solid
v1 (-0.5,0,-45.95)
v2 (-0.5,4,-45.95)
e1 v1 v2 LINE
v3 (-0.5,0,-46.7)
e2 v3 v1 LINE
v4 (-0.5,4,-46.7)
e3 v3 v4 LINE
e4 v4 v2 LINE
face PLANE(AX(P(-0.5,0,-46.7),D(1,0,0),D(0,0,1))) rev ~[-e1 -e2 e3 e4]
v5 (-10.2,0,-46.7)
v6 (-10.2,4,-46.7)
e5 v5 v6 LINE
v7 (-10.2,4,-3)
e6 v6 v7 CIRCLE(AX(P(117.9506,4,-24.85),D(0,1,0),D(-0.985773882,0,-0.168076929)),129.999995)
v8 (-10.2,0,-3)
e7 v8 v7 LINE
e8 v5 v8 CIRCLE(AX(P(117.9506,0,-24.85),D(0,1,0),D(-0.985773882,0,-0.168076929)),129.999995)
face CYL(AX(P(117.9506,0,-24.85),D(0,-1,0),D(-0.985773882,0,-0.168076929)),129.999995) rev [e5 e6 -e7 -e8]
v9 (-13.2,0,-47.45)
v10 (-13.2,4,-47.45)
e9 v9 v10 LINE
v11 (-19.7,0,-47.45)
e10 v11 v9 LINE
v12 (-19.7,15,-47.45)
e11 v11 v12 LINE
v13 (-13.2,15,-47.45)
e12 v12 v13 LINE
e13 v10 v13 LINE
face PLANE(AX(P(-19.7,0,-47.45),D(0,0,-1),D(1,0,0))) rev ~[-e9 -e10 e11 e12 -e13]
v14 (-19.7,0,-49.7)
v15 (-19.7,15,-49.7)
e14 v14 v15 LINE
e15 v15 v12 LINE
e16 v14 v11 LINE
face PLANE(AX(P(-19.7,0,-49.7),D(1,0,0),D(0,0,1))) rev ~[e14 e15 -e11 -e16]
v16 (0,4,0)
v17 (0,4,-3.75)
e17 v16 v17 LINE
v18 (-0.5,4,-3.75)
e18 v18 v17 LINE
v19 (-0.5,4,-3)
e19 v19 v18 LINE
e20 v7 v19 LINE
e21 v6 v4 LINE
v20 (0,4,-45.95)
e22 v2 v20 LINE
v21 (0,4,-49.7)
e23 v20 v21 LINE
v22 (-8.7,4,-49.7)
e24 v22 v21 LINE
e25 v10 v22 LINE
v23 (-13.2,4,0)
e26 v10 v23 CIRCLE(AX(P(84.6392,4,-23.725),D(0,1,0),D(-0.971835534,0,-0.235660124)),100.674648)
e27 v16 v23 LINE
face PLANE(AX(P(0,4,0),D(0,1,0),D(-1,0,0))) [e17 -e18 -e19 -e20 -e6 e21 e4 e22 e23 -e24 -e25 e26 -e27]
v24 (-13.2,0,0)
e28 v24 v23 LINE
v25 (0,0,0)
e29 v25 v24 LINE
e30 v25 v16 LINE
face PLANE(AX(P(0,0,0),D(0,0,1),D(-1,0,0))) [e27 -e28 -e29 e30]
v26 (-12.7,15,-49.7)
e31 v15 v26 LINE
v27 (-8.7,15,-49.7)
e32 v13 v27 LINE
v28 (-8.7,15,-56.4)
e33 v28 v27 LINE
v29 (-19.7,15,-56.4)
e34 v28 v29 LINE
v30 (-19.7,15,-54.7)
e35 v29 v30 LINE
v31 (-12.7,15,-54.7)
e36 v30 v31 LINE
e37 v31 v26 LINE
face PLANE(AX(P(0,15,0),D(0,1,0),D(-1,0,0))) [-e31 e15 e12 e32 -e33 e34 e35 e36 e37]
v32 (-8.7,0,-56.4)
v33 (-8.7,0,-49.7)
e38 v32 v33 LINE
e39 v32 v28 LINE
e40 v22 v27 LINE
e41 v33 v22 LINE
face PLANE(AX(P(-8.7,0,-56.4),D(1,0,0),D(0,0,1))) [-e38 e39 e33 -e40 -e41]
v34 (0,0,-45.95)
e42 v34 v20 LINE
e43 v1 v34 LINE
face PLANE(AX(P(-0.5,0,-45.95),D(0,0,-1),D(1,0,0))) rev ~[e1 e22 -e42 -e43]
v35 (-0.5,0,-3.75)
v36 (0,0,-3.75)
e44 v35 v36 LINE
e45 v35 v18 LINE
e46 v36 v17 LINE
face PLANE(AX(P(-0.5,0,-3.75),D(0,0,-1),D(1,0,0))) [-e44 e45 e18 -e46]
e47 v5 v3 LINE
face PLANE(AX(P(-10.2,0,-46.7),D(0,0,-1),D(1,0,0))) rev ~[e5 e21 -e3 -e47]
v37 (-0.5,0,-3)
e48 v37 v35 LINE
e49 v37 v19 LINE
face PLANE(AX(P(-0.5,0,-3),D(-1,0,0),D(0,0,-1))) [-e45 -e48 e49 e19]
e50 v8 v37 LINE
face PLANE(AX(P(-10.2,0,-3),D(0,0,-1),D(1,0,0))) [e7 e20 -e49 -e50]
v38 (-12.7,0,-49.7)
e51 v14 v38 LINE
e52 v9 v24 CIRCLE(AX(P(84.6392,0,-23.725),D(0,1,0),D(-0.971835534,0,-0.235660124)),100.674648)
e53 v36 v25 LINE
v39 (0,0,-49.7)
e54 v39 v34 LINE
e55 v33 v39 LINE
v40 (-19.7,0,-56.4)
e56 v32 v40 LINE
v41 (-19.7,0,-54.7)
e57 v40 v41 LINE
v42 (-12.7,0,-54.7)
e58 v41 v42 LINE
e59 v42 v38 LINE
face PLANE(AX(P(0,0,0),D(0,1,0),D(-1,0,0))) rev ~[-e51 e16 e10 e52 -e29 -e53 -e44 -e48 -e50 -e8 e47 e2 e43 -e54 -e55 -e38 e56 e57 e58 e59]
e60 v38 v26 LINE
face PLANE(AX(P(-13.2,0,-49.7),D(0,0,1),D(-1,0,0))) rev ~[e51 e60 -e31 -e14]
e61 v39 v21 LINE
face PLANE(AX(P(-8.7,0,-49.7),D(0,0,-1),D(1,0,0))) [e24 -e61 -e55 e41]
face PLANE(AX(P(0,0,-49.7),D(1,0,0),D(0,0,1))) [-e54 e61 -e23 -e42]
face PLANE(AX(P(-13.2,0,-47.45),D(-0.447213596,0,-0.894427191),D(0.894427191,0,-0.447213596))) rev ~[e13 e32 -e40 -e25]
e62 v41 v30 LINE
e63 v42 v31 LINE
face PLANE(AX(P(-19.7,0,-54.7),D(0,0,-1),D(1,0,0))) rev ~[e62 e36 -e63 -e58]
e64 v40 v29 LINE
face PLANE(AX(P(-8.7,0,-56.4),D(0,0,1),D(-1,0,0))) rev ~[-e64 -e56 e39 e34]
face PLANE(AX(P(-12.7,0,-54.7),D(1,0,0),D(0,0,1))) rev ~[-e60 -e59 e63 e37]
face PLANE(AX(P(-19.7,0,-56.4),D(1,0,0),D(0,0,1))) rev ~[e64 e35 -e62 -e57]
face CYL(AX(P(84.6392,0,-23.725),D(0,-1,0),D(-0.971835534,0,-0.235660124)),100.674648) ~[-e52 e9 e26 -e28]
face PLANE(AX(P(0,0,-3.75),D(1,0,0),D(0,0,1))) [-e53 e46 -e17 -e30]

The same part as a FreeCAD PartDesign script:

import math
import FreeCAD as App
import Part
import Sketcher


def add_polygon(sketch, points):
    """Adds a closed chain of lines whose ends are joined by coincident constraints."""
    first, n = sketch.GeometryCount, len(points)
    for a, b in zip(points, points[1:] + points[:1]):
        sketch.addGeometry(Part.LineSegment(App.Vector(*a, 0), App.Vector(*b, 0)), False)
    for i in range(n):
        sketch.addConstraint(Sketcher.Constraint("Coincident", first + i, 2, first + (i + 1) % n, 1))

doc = App.newDocument("Part")
body = doc.addObject("PartDesign::Body", "Body")

sketch1 = body.newObject("Sketcher::SketchObject", "Sketch")
sketch1.AttachmentSupport = (doc.getObject("XZ_Plane"), [""])
sketch1.MapMode = "FlatFace"
sketch1.addGeometry([
    Part.LineSegment(App.Vector(-0.5, -3, 0), App.Vector(-10.2, -3, 0)),
    Part.ArcOfCircle(Part.Circle(App.Vector(117.9506, -24.85, 0), App.Vector(0, 0, 1), 129.999995), math.radians(170.323974), math.radians(189.676026)),
    Part.LineSegment(App.Vector(-10.2, -46.7, 0), App.Vector(-0.5, -46.7, 0)),
    Part.LineSegment(App.Vector(-0.5, -46.7, 0), App.Vector(-0.5, -45.95, 0)),
    Part.LineSegment(App.Vector(-0.5, -45.95, 0), App.Vector(0, -45.95, 0)),
    Part.LineSegment(App.Vector(0, -45.95, 0), App.Vector(0, -49.7, 0)),
    Part.LineSegment(App.Vector(0, -49.7, 0), App.Vector(-8.7, -49.7, 0)),
    Part.LineSegment(App.Vector(-8.7, -49.7, 0), App.Vector(-13.2, -47.45, 0)),
    Part.ArcOfCircle(Part.Circle(App.Vector(84.6392, -23.725, 0), App.Vector(0, 0, 1), 100.674648), math.radians(166.369462), math.radians(193.630538)),
    Part.LineSegment(App.Vector(-13.2, 0, 0), App.Vector(0, 0, 0)),
    Part.LineSegment(App.Vector(0, 0, 0), App.Vector(0, -3.75, 0)),
    Part.LineSegment(App.Vector(0, -3.75, 0), App.Vector(-0.5, -3.75, 0)),
    Part.LineSegment(App.Vector(-0.5, -3.75, 0), App.Vector(-0.5, -3, 0)),
], False)
sketch1.addConstraint([
    Sketcher.Constraint("Coincident", 0, 2, 1, 1),
    Sketcher.Constraint("Coincident", 1, 2, 2, 1),
    Sketcher.Constraint("Coincident", 2, 2, 3, 1),
    Sketcher.Constraint("Coincident", 3, 2, 4, 1),
    Sketcher.Constraint("Coincident", 4, 2, 5, 1),
    Sketcher.Constraint("Coincident", 5, 2, 6, 1),
    Sketcher.Constraint("Coincident", 6, 2, 7, 1),
    Sketcher.Constraint("Coincident", 7, 2, 8, 2),
    Sketcher.Constraint("Coincident", 8, 1, 9, 1),
    Sketcher.Constraint("Coincident", 9, 2, 10, 1),
    Sketcher.Constraint("Coincident", 10, 2, 11, 1),
    Sketcher.Constraint("Coincident", 11, 2, 12, 1),
    Sketcher.Constraint("Coincident", 12, 2, 0, 1),
    Sketcher.Constraint("Horizontal", 0),
    Sketcher.Constraint("Horizontal", 2),
    Sketcher.Constraint("Vertical", 3),
    Sketcher.Constraint("Horizontal", 4),
    Sketcher.Constraint("Vertical", 5),
    Sketcher.Constraint("Horizontal", 6),
    Sketcher.Constraint("Horizontal", 9),
    Sketcher.Constraint("Vertical", 10),
    Sketcher.Constraint("Horizontal", 11),
    Sketcher.Constraint("Vertical", 12),
    Sketcher.Constraint("Coincident", 9, 2, -1, 1),
    Sketcher.Constraint("PointOnObject", 4, 2, -2),
    Sketcher.Constraint("Vertical", 0, 2, 1, 2),
    Sketcher.Constraint("Vertical", 7, 2, 8, 1),
    Sketcher.Constraint("Vertical", 3, 2, 11, 2),
    Sketcher.Constraint("Equal", 5, 10),
    Sketcher.Constraint("Equal", 3, 12),
    Sketcher.Constraint("Radius", 1, 130.0),
    Sketcher.Constraint("DistanceX", 0, 2, 0, 1, 9.7),
    Sketcher.Constraint("DistanceX", 4, 1, 4, 2, 0.5),
    Sketcher.Constraint("DistanceY", 0, 2, -1, 1, 3.0),
    Sketcher.Constraint("DistanceX", 7, 2, 1, 2, 3.0),
    Sketcher.Constraint("DistanceY", 3, 1, 3, 2, 0.75),
    Sketcher.Constraint("Radius", 8, 100.6746),
    Sketcher.Constraint("DistanceY", 1, 2, 0, 2, 43.7),
    Sketcher.Constraint("DistanceY", 7, 2, 1, 2, 0.75),
    Sketcher.Constraint("DistanceX", 6, 2, 6, 1, 8.7),
])
pad1 = body.newObject("PartDesign::Pad", "Pad")
pad1.Profile = sketch1
pad1.Length = 4
pad1.Reversed = True

sketch2 = body.newObject("Sketcher::SketchObject", "Sketch001")
sketch2.AttachmentSupport = (doc.getObject("XZ_Plane"), [""])
sketch2.MapMode = "FlatFace"
add_polygon(sketch2, [(-13.2, -47.45), (-8.7, -49.7), (-8.7, -56.4), (-19.7, -56.4), (-19.7, -54.7), (-12.7, -54.7), (-12.7, -49.7), (-19.7, -49.7), (-19.7, -47.45)])
sketch2.addConstraint([
    Sketcher.Constraint("Vertical", 1),
    Sketcher.Constraint("Horizontal", 2),
    Sketcher.Constraint("Vertical", 3),
    Sketcher.Constraint("Horizontal", 4),
    Sketcher.Constraint("Vertical", 5),
    Sketcher.Constraint("Horizontal", 6),
    Sketcher.Constraint("Vertical", 7),
    Sketcher.Constraint("Horizontal", 8),
    Sketcher.Constraint("Horizontal", 0, 2, 5, 2),
    Sketcher.Constraint("Vertical", 3, 2, 6, 2),
    Sketcher.Constraint("DistanceX", 4, 1, 4, 2, 7.0),
    Sketcher.Constraint("DistanceY", 5, 1, 5, 2, 5.0),
    Sketcher.Constraint("DistanceY", 3, 1, 3, 2, 1.7),
    Sketcher.Constraint("DistanceX", 4, 2, 1, 2, 4.0),
    Sketcher.Constraint("DistanceY", 7, 1, 7, 2, 2.25),
    Sketcher.Constraint("DistanceX", 8, 2, 5, 2, 0.5),
    Sketcher.Constraint("DistanceX", 0, 2, -1, 1, 8.7),
    Sketcher.Constraint("DistanceY", 0, 2, -1, 1, 49.7),
])
pad2 = body.newObject("PartDesign::Pad", "Pad001")
pad2.Profile = sketch2
pad2.Length = 15
pad2.Reversed = True

doc.recompute()
